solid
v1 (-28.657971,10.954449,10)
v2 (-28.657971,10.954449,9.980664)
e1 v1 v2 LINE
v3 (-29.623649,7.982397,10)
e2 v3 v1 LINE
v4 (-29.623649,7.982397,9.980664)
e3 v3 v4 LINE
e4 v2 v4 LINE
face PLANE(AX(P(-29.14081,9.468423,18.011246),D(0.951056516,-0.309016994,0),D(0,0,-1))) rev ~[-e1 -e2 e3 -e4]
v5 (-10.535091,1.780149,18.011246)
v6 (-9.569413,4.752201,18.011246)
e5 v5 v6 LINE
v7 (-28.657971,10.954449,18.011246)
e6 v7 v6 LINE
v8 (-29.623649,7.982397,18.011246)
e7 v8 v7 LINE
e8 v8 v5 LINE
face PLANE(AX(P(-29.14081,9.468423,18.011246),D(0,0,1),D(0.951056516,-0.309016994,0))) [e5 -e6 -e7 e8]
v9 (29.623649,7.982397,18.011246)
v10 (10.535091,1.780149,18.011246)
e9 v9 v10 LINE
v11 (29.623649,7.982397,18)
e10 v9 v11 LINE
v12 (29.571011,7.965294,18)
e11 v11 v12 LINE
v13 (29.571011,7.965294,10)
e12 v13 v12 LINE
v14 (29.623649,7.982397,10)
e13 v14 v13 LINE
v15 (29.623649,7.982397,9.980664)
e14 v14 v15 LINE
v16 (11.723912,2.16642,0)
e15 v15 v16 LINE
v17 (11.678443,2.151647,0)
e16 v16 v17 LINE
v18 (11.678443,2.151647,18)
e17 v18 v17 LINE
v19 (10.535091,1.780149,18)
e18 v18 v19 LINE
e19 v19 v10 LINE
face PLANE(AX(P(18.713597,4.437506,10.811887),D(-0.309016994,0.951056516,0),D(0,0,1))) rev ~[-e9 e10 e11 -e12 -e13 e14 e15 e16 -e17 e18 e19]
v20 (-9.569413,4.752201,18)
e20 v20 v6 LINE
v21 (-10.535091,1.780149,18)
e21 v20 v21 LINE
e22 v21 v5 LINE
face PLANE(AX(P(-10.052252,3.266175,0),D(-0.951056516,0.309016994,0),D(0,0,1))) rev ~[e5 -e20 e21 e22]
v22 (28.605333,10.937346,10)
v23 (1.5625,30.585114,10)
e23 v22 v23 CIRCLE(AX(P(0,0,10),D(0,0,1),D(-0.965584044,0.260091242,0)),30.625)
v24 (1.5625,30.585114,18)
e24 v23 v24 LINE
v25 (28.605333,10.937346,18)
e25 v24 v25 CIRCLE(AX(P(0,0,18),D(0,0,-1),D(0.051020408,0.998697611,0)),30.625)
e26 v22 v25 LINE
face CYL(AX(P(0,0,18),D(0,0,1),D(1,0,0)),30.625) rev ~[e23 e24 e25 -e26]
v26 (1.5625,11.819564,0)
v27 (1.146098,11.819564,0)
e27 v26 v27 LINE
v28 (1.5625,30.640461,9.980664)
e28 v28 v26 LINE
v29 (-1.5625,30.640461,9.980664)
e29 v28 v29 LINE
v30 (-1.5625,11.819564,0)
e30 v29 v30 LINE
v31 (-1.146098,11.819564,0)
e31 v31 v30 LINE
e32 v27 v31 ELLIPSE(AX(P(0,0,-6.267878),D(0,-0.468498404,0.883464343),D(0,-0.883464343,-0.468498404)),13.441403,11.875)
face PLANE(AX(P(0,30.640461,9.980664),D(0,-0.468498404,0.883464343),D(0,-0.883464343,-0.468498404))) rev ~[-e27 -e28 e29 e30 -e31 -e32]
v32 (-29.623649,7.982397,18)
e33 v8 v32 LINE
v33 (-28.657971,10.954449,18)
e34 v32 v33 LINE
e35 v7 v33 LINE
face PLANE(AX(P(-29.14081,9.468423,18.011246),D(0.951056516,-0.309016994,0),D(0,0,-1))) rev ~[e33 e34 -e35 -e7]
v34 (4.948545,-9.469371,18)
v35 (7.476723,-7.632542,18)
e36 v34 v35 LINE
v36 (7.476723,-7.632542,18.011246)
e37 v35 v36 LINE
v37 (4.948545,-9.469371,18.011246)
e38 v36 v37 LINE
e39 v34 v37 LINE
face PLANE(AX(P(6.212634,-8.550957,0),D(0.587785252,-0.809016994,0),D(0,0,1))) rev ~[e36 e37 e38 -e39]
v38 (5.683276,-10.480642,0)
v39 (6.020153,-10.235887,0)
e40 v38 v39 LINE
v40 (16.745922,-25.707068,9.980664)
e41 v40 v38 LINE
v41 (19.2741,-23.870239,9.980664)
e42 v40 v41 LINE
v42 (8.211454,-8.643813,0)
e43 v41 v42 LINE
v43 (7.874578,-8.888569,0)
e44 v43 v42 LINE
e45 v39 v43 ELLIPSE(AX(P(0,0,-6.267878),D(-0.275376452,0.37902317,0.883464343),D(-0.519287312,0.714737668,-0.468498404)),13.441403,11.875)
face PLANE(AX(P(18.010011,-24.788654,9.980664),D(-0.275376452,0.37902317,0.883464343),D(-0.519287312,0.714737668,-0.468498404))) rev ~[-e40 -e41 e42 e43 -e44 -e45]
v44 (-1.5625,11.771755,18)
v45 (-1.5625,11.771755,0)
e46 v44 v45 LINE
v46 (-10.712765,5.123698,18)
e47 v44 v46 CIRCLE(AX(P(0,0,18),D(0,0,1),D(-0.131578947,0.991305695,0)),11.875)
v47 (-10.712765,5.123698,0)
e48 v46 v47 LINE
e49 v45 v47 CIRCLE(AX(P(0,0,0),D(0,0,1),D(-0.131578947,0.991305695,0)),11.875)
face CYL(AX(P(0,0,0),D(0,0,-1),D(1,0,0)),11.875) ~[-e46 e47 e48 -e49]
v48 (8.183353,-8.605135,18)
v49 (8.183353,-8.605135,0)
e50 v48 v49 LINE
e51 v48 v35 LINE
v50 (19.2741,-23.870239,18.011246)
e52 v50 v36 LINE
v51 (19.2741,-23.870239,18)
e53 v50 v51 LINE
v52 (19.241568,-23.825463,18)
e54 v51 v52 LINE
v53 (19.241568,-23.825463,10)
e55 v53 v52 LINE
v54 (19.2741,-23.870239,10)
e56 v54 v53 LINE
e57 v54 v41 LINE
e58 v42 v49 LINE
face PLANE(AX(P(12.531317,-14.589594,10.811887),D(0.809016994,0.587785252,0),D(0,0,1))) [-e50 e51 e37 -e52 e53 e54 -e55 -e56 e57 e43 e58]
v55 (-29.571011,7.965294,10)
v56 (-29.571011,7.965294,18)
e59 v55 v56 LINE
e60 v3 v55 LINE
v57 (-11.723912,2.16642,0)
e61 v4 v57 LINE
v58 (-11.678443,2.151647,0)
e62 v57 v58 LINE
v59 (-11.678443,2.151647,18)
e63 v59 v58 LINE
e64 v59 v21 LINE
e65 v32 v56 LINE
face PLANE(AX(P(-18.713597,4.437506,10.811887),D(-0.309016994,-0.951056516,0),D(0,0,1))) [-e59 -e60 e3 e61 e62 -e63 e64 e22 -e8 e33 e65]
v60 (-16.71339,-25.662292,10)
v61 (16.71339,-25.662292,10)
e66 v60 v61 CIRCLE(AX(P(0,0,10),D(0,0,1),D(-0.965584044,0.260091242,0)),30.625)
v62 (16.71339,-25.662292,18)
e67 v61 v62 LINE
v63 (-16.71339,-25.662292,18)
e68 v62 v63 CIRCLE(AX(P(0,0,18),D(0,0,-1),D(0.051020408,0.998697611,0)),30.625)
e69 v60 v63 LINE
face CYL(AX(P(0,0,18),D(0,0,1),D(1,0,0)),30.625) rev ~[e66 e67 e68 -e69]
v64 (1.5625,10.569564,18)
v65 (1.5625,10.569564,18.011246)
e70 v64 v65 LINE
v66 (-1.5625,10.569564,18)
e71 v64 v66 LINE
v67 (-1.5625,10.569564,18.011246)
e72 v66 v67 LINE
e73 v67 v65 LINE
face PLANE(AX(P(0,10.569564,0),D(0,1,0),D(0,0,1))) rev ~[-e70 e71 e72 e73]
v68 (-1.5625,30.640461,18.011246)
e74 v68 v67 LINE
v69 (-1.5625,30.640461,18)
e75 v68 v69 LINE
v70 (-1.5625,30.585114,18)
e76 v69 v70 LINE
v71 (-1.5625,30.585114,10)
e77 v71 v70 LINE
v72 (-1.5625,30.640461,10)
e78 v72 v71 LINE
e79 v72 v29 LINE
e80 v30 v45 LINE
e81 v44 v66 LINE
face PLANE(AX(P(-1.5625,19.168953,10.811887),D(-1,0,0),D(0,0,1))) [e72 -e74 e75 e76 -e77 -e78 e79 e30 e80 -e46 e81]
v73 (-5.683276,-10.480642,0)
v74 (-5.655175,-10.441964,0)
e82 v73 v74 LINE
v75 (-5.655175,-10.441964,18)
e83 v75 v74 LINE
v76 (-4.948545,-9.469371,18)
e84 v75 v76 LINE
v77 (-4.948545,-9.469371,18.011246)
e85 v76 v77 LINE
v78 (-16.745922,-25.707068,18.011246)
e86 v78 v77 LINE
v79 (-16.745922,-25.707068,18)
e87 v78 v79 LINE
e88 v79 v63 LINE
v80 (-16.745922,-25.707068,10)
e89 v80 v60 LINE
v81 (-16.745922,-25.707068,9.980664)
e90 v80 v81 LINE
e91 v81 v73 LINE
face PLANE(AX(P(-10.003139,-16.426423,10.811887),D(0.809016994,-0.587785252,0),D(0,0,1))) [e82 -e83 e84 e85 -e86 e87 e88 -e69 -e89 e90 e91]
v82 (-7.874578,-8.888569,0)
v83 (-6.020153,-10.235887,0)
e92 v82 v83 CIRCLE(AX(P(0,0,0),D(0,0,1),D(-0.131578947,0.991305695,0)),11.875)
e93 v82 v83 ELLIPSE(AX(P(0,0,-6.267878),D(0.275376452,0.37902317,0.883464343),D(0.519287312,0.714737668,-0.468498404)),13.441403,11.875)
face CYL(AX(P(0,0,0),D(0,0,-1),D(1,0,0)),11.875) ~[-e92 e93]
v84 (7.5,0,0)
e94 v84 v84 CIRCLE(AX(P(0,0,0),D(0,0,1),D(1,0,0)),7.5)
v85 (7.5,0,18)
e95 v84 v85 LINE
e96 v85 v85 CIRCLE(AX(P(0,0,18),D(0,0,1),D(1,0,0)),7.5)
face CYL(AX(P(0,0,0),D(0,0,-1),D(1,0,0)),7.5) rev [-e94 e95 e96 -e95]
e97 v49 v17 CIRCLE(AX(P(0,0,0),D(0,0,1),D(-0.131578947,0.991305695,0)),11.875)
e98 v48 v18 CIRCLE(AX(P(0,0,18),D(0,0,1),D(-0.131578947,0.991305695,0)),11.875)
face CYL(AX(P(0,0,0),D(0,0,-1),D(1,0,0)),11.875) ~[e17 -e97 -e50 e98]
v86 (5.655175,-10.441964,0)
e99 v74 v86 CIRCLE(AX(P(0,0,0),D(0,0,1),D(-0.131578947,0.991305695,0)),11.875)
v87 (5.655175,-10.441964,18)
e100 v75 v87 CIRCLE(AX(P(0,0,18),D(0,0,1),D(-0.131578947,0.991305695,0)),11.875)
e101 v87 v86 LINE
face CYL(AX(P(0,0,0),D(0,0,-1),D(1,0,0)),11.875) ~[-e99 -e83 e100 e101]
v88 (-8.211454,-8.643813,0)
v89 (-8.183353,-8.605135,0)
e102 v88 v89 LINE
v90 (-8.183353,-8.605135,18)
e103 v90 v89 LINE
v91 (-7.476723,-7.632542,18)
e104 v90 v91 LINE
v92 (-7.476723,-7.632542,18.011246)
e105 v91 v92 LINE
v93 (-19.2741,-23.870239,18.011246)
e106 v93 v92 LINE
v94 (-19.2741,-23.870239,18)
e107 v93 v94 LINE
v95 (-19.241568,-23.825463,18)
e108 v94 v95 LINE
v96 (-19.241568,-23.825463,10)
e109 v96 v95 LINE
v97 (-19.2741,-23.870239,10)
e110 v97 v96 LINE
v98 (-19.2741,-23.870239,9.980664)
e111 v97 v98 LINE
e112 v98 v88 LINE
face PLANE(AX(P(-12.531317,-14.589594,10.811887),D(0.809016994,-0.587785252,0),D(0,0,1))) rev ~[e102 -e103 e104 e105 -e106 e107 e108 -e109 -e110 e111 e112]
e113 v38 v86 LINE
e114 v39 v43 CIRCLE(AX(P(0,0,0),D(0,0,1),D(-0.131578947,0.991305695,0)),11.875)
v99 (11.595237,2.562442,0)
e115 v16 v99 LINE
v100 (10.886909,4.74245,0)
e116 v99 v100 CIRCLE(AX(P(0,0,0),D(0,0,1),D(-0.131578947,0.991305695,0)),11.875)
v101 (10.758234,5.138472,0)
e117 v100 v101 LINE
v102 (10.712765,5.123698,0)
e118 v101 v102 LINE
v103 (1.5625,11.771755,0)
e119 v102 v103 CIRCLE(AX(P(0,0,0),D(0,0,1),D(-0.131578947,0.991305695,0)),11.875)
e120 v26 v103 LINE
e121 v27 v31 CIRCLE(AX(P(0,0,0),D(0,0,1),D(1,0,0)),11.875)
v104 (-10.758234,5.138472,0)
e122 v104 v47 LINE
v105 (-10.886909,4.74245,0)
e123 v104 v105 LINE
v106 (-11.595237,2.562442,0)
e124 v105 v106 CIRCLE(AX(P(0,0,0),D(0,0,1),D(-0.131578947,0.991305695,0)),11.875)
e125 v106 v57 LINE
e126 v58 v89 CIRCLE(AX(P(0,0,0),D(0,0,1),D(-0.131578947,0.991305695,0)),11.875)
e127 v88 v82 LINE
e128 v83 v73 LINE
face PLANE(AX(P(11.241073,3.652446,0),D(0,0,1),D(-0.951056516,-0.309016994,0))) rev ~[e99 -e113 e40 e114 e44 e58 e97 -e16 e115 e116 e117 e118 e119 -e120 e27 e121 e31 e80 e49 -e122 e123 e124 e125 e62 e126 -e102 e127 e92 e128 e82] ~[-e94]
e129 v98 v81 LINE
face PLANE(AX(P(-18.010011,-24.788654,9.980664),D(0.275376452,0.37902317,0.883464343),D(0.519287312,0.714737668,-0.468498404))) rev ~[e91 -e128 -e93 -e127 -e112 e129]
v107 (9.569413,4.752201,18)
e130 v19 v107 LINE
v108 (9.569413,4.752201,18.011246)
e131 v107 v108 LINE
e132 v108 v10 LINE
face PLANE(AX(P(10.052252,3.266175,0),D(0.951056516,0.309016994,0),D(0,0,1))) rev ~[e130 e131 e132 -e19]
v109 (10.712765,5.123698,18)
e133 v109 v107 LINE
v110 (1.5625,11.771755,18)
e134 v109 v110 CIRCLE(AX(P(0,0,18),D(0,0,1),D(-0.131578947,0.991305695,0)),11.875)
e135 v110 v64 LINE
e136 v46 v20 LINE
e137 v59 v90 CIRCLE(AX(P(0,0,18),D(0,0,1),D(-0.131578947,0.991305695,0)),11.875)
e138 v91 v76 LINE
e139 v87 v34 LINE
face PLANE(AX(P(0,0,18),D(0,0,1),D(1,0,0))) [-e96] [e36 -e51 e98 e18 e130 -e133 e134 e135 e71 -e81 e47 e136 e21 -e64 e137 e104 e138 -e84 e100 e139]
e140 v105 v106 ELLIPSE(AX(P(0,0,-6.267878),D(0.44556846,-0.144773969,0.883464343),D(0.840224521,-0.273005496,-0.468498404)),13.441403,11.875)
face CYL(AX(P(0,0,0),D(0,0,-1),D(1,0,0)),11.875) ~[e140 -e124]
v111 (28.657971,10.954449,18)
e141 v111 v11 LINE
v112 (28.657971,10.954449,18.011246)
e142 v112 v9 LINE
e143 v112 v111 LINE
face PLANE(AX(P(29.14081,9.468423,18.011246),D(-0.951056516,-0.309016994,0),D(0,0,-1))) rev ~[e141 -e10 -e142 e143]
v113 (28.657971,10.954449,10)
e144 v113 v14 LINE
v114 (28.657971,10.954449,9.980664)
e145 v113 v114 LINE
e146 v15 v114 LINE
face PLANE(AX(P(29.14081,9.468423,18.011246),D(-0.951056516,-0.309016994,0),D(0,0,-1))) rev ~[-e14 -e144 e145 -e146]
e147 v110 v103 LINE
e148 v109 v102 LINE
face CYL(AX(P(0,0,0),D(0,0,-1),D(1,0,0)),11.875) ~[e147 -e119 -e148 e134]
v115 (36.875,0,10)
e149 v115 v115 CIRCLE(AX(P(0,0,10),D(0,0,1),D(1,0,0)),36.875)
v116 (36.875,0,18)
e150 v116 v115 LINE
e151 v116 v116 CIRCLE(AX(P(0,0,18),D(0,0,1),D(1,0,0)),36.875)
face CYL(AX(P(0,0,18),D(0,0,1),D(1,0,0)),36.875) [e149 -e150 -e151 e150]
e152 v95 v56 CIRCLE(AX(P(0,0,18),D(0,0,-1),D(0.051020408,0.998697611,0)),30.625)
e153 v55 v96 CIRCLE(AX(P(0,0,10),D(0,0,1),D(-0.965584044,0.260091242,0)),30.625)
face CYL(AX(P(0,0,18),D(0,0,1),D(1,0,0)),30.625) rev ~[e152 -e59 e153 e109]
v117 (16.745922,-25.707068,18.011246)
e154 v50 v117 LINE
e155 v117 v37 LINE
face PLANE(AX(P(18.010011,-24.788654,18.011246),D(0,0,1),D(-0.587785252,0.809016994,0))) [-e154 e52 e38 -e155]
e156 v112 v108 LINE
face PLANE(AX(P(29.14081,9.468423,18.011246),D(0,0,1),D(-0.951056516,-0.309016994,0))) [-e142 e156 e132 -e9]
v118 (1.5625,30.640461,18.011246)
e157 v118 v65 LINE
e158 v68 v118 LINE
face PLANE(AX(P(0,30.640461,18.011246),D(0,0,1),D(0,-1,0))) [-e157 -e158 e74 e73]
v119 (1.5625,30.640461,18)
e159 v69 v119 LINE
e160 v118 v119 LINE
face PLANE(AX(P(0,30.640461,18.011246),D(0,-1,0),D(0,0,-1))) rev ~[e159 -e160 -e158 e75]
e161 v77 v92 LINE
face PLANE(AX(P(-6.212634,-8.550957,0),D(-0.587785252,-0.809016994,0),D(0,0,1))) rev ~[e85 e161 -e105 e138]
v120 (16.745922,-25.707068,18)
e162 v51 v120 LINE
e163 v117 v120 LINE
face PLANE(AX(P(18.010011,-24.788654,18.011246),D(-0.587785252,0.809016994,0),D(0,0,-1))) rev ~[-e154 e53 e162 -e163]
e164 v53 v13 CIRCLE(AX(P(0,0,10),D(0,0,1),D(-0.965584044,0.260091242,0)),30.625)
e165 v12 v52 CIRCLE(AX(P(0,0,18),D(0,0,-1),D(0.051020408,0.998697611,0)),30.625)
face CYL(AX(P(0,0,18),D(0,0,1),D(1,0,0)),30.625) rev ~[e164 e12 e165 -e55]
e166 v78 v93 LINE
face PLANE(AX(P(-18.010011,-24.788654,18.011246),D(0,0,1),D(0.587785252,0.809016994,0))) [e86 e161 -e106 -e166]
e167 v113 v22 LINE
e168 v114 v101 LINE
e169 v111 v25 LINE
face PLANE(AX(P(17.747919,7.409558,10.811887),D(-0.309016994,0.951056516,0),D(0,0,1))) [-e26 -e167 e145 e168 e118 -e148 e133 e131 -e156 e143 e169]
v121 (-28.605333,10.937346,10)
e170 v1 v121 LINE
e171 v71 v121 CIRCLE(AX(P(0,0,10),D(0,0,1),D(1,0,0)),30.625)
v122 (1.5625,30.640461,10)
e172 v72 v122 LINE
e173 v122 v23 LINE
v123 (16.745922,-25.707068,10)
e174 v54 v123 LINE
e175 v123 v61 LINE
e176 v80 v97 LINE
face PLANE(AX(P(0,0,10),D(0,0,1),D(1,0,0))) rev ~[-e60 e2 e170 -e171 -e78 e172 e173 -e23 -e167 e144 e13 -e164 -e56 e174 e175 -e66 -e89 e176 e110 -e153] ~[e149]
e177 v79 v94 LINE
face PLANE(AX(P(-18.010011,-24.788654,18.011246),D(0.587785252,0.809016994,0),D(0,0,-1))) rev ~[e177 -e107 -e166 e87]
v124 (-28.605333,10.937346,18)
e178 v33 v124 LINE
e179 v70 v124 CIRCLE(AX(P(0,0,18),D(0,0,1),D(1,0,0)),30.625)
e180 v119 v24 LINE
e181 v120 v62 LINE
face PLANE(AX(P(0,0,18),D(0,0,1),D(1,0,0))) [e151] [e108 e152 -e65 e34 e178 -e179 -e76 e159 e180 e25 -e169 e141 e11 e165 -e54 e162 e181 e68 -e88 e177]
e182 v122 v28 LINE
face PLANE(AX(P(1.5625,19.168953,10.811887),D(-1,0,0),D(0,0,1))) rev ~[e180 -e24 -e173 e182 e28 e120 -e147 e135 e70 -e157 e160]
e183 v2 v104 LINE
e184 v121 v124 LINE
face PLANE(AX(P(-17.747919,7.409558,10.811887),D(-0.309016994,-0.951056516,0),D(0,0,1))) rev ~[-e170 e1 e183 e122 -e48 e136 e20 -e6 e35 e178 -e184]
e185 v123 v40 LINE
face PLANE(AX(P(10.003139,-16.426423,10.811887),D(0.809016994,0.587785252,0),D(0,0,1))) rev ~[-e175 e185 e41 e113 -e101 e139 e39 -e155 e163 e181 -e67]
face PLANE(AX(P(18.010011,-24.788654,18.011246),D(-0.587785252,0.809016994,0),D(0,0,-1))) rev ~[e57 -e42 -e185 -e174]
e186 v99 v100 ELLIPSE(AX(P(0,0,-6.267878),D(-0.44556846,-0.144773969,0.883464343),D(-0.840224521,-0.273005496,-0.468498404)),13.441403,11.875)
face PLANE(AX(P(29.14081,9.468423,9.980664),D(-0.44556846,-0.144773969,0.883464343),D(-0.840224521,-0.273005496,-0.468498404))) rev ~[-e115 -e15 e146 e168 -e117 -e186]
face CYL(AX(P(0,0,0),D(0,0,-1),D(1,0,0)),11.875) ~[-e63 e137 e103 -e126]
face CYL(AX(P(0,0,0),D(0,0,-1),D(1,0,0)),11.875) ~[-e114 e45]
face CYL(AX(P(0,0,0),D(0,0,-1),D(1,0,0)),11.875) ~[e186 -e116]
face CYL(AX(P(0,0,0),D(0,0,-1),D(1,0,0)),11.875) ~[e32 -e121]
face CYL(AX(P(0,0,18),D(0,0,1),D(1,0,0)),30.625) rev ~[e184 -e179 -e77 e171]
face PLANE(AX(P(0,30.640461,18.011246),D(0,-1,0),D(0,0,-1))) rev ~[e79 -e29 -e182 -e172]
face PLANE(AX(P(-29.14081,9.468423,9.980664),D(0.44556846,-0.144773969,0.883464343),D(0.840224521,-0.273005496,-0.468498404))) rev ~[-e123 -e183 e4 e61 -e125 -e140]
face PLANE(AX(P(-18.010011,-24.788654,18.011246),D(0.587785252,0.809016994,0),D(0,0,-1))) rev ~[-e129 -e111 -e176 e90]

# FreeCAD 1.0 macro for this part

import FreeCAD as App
import Part
import Sketcher
Q = App.Units.Quantity


def add_polygon(sketch, points):
    """Adds a closed chain of lines whose ends are joined by coincident constraints."""
    first, n = sketch.GeometryCount, len(points)
    for a, b in zip(points, points[1:] + points[:1]):
        sketch.addGeometry(Part.LineSegment(App.Vector(*a, 0), App.Vector(*b, 0)), False)
    for i in range(n):
        sketch.addConstraint(Sketcher.Constraint("Coincident", first + i, 2, first + (i + 1) % n, 1))

doc = App.newDocument("Part")
body = doc.addObject("PartDesign::Body", "Body")

# Sketch on XY plane
sketch1 = body.newObject("Sketcher::SketchObject", "Sketch")
sketch1.AttachmentSupport = (doc.getObject("XY_Plane"), [""])
sketch1.MapMode = "FlatFace"
sketch1.addGeometry([
    Part.Circle(App.Vector(0, 0, 0), App.Vector(0, 0, 1), 11.875),
    Part.Circle(App.Vector(0, 0, 0), App.Vector(0, 0, 1), 7.5),
], False)
sketch1.addConstraint([
    Sketcher.Constraint("Coincident", 0, 3, -1, 1),
    Sketcher.Constraint("Coincident", 1, 3, -1, 1),
    Sketcher.Constraint("Diameter", 1, Q("15 mm")),
    Sketcher.Constraint("Diameter", 0, Q("23.75 mm")),
])
pad1 = body.newObject("PartDesign::Pad", "Pad")
pad1.Profile = sketch1
pad1.Length = 18
body2 = doc.addObject("PartDesign::Body", "Body001")

# Sketch on XY plane
sketch2 = body2.newObject("Sketcher::SketchObject", "Sketch001")
sketch2.AttachmentSupport = (doc.getObject("XY_Plane001"), [""])
sketch2.MapMode = "FlatFace"
sketch2.AttachmentOffset = App.Placement(App.Vector(0, 0, 18), App.Rotation())
sketch2.addGeometry([
    Part.Circle(App.Vector(0, 0, 0), App.Vector(0, 0, 1), 36.875),
    Part.Circle(App.Vector(0, 0, 0), App.Vector(0, 0, 1), 30.625),
], False)
sketch2.addConstraint([
    Sketcher.Constraint("Coincident", 0, 3, -1, 1),
    Sketcher.Constraint("Coincident", 1, 3, -1, 1),
    Sketcher.Constraint("Diameter", 0, Q("73.75 mm")),
    Sketcher.Constraint("Diameter", 1, Q("61.25 mm")),
])
pad2 = body2.newObject("PartDesign::Pad", "Pad001")
pad2.Profile = sketch2
pad2.Length = 8
pad2.Reversed = True
body.AllowCompound = True
doc.recompute()

boolean = body.newObject("PartDesign::Boolean", "Boolean")
boolean.Type = "Fuse"
boolean.addObjects([body2])

# Sketch on YZ plane
sketch3 = body.newObject("Sketcher::SketchObject", "Sketch002")
sketch3.AttachmentSupport = (doc.getObject("YZ_Plane"), [""])
sketch3.MapMode = "FlatFace"
add_polygon(sketch3, [(30.640461, 9.980664), (30.640461, 18.011246), (10.569564, 18.011246), (10.569564, 0), (11.819564, 0)])  # lines 0-4
sketch3.addConstraint([
    Sketcher.Constraint("Vertical", 0),
    Sketcher.Constraint("Horizontal", 1),
    Sketcher.Constraint("Vertical", 2),
    Sketcher.Constraint("Horizontal", 3),
    Sketcher.Constraint("PointOnObject", 2, 2, -1),
    Sketcher.Constraint("DistanceX", 3, 1, 3, 2, Q("1.25 mm")),
    Sketcher.Constraint("DistanceX", 1, 2, 1, 1, Q("20.070897 mm")),
    Sketcher.Constraint("DistanceY", 0, 1, 0, 2, Q("8.030583 mm")),
    Sketcher.Constraint("DistanceY", 2, 2, 2, 1, Q("18.011246 mm")),
    Sketcher.Constraint("DistanceX", -1, 1, 0, 2, Q("30.640461 mm")),
])
pad3 = body.newObject("PartDesign::Pad", "Pad002")
pad3.Profile = sketch3
pad3.Length = 3.125
pad3.Midplane = True
doc.recompute()

polarpattern = body.newObject("PartDesign::PolarPattern", "PolarPattern")
polarpattern.Originals = [pad3]
polarpattern.Axis = (doc.getObject("Z_Axis"), [""])
polarpattern.Angle = 360
polarpattern.Occurrences = 5
body.Tip = polarpattern

doc.recompute()
